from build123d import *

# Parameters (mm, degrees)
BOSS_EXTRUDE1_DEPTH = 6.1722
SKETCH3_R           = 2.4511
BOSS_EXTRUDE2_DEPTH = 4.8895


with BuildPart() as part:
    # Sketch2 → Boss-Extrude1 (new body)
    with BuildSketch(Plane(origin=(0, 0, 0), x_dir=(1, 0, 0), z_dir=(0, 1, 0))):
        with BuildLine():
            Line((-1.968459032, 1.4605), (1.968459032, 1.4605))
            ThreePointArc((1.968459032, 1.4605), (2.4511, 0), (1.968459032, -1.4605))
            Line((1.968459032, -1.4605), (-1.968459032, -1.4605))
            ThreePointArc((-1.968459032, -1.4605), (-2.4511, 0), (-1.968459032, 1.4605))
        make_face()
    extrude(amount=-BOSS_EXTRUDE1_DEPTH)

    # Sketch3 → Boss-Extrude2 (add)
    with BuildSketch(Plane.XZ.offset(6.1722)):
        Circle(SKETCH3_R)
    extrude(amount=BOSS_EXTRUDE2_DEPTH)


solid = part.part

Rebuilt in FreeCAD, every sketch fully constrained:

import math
import FreeCAD as App
import Part
import Sketcher
Q = App.Units.Quantity

doc = App.newDocument("Part")
body = doc.addObject("PartDesign::Body", "Body")

# Sketch on XZ plane
sketch1 = body.newObject("Sketcher::SketchObject", "Sketch")
sketch1.AttachmentSupport = (doc.getObject("XZ_Plane"), [""])
sketch1.MapMode = "FlatFace"
sketch1.addGeometry(Part.LineSegment(App.Vector(2, -1.5, 0), App.Vector(-2, -1.5, 0)), False)
sketch1.addGeometry(Part.ArcOfCircle(Part.Circle(App.Vector(0, 0, 0), App.Vector(0, 0, 1), 2.5), math.radians(143), math.radians(217)), False)
sketch1.addGeometry(Part.LineSegment(App.Vector(-2, 1.5, 0), App.Vector(2, 1.5, 0)), False)
sketch1.addGeometry(Part.ArcOfCircle(Part.Circle(App.Vector(0, 0, 0), App.Vector(0, 0, 1), 2.5), math.radians(-37), math.radians(37)), False)
sketch1.addConstraint(Sketcher.Constraint("Coincident", 0, 2, 1, 2))
sketch1.addConstraint(Sketcher.Constraint("Coincident", 1, 1, 2, 1))
sketch1.addConstraint(Sketcher.Constraint("Coincident", 2, 2, 3, 2))
sketch1.addConstraint(Sketcher.Constraint("Coincident", 3, 1, 0, 1))
sketch1.addConstraint(Sketcher.Constraint("Horizontal", 0))
sketch1.addConstraint(Sketcher.Constraint("Horizontal", 2))
sketch1.addConstraint(Sketcher.Constraint("Coincident", 1, 3, -1, 1))
sketch1.addConstraint(Sketcher.Constraint("Coincident", 3, 3, -1, 1))
sketch1.addConstraint(Sketcher.Constraint("Equal", 1, 3))
sketch1.addConstraint(Sketcher.Constraint("Vertical", 0, 2, 1, 1))
sketch1.addConstraint(Sketcher.Constraint("Radius", 1, Q("0.0965 in")))
sketch1.addConstraint(Sketcher.Constraint("DistanceY", 0, 2, 1, 1, Q("0.115 in")))
pad1 = body.newObject("PartDesign::Pad", "Pad")
pad1.Profile = sketch1
pad1.Length = Q("0.243 in")

# Sketch on XZ plane
sketch2 = body.newObject("Sketcher::SketchObject", "Sketch001")
sketch2.AttachmentSupport = (doc.getObject("XZ_Plane"), [""])
sketch2.MapMode = "FlatFace"
sketch2.AttachmentOffset = App.Placement(App.Vector(0, 0, 0.243 * 25.4), App.Rotation())
sketch2.addGeometry(Part.Circle(App.Vector(0, 0, 0), App.Vector(0, 0, 1), 2.5), False)
sketch2.addConstraint(Sketcher.Constraint("Coincident", 0, 3, -1, 1))
sketch2.addConstraint(Sketcher.Constraint("Diameter", 0, Q("0.193 in")))
pad2 = body.newObject("PartDesign::Pad", "Pad001")
pad2.Profile = sketch2
pad2.Length = Q("0.1925 in")

doc.recompute()
